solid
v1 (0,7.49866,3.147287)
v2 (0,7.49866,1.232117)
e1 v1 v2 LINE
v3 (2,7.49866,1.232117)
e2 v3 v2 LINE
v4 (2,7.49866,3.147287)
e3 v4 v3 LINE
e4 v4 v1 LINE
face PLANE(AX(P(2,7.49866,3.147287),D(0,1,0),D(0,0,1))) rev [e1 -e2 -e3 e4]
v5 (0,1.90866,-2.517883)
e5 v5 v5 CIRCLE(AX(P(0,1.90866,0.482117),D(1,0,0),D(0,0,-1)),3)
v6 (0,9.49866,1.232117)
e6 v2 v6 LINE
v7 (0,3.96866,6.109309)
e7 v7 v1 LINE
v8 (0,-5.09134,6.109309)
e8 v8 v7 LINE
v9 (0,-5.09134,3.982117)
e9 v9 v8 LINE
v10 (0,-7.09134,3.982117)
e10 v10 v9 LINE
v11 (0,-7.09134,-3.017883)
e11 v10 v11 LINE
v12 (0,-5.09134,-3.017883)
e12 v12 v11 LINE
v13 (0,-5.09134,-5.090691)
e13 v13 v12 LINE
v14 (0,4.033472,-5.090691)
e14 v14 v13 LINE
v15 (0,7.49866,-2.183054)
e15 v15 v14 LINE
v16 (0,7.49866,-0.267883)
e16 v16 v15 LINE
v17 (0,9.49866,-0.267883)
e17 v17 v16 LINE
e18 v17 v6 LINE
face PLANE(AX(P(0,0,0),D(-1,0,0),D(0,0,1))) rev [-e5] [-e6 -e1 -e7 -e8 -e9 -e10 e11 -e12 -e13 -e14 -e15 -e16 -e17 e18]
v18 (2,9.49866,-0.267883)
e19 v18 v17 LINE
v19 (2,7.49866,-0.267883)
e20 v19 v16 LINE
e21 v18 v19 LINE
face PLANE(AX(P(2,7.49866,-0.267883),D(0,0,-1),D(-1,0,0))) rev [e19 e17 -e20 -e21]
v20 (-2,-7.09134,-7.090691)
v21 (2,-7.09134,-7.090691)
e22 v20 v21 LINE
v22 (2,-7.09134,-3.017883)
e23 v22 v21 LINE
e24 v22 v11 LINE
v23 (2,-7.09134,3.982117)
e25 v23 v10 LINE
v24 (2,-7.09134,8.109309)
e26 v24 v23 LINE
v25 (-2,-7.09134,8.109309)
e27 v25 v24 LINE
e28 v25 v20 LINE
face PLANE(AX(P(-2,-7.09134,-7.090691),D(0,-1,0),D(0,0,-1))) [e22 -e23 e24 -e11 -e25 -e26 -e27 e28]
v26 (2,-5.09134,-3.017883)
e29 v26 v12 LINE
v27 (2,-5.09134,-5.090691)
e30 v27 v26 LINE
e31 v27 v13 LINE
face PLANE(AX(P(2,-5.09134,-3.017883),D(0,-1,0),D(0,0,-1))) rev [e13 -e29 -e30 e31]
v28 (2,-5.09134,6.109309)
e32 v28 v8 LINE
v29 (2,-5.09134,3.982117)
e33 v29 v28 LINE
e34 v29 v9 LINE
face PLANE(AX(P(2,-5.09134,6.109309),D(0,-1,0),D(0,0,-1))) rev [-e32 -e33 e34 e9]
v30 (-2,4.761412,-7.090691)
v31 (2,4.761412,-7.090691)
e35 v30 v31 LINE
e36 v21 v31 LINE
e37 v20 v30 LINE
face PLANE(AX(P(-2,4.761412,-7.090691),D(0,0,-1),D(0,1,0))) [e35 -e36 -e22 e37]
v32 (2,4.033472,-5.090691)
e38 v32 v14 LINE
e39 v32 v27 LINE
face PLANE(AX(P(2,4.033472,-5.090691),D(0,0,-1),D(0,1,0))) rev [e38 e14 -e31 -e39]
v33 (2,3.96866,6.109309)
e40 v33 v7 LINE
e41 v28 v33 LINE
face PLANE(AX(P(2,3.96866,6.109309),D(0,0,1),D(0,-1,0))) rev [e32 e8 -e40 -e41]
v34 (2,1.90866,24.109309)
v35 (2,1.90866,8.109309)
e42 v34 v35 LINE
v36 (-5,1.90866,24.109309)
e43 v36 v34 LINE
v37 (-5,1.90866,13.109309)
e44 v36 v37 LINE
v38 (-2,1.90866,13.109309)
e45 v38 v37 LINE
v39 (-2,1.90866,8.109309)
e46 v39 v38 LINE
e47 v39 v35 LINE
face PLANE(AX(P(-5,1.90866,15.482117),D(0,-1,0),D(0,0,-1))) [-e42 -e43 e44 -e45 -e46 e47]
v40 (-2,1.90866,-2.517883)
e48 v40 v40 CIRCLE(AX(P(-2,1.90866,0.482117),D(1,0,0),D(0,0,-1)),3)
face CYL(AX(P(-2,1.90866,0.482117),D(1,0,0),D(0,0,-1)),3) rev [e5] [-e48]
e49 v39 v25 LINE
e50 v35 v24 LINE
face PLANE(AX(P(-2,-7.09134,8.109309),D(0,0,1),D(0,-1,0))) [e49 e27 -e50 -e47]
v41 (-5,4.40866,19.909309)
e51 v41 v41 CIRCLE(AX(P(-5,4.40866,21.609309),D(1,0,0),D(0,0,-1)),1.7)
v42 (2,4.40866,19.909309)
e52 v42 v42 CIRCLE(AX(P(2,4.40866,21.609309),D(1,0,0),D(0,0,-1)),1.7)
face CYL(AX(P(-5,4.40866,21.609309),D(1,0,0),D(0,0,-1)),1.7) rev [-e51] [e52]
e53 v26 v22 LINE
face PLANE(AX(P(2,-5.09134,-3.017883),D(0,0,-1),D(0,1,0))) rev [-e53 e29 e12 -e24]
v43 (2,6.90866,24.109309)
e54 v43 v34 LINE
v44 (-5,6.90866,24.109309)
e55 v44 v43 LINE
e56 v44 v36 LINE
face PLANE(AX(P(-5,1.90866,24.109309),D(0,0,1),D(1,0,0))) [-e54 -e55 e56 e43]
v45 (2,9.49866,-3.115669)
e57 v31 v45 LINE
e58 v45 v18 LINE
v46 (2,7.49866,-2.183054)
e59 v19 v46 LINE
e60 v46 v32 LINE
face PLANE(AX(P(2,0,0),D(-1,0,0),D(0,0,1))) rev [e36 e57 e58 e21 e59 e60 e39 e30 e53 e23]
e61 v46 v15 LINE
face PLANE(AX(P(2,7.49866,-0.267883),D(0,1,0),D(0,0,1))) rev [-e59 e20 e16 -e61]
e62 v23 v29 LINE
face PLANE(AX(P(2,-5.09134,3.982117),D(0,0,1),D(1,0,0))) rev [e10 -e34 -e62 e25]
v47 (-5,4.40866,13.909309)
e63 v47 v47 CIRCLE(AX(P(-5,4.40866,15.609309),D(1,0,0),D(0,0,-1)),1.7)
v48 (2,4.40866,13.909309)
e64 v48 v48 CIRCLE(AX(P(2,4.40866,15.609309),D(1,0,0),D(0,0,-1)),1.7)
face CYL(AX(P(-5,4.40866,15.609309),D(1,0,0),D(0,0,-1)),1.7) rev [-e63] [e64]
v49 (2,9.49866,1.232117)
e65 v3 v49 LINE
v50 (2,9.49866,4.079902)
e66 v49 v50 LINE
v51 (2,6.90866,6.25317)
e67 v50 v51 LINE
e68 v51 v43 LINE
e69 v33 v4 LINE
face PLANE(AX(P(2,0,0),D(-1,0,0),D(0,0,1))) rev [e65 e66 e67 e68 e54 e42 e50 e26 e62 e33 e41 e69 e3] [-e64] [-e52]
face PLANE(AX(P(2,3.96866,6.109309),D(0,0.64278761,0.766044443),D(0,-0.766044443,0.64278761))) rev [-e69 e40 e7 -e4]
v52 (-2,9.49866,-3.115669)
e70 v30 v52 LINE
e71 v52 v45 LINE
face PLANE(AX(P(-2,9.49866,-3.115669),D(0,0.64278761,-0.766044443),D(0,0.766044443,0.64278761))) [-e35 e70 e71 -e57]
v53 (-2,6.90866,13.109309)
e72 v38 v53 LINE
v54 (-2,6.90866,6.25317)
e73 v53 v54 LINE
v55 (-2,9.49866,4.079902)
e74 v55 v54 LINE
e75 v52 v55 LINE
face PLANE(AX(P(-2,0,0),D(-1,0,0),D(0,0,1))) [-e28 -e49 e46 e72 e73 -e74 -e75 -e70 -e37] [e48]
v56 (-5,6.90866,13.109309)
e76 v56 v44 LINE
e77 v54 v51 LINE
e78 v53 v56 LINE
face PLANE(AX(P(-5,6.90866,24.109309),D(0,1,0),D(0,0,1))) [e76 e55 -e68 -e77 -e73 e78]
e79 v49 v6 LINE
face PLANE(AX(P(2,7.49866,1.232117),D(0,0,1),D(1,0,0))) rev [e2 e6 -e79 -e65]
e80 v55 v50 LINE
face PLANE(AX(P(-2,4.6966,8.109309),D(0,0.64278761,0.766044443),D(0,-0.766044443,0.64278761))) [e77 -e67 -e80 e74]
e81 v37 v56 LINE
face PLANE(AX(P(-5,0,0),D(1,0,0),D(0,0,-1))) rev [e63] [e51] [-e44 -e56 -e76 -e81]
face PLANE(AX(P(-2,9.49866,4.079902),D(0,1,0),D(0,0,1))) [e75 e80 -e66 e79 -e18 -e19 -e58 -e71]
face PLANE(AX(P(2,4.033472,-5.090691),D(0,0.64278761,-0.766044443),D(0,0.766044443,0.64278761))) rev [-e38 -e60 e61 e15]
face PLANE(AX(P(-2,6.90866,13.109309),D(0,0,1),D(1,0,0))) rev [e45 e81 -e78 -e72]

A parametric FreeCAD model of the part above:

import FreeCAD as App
import Part
import Sketcher

V = App.Vector
Q = App.Units.Quantity

doc = App.newDocument("Part")
body = doc.addObject("PartDesign::Body", "Body")

sketch1 = body.newObject("Sketcher::SketchObject", "Sketch")
sketch1.AttachmentSupport = (doc.getObject("YZ_Plane"), [""])
sketch1.MapMode = "FlatFace"
sketch1.addGeometry([
    Part.LineSegment(V(5, 8, 0), V(-7, 8, 0)),
    Part.LineSegment(V(-7, 8, 0), V(-7, -7, 0)),
    Part.LineSegment(V(-7, -7, 0), V(5, -7, 0)),
    Part.LineSegment(V(5, -7, 0), V(9, -3, 0)),
    Part.LineSegment(V(9, -3, 0), V(9, 4, 0)),
    Part.LineSegment(V(9, 4, 0), V(5, 8, 0)),
], False)
sketch1.addConstraint([
    Sketcher.Constraint("Coincident", 0, 2, 1, 1),
    Sketcher.Constraint("Coincident", 1, 2, 2, 1),
    Sketcher.Constraint("Coincident", 2, 2, 3, 1),
    Sketcher.Constraint("Coincident", 3, 2, 4, 1),
    Sketcher.Constraint("Coincident", 4, 2, 5, 1),
    Sketcher.Constraint("Coincident", 5, 2, 0, 1),
    Sketcher.Constraint("Horizontal", 0),
    Sketcher.Constraint("Vertical", 1),
    Sketcher.Constraint("Horizontal", 2),
    Sketcher.Constraint("Vertical", 4),
    Sketcher.Constraint("Angle", 3, Q("40 deg")),
    Sketcher.Constraint("Angle", 5, Q("140 deg")),
    Sketcher.Constraint("DistanceY", 1, 2, 1, 1, 15.2),
    Sketcher.Constraint("DistanceX", 1, 2, 3, 2, 16.59),
    Sketcher.Constraint("DistanceX", 0, 2, 0, 1, 11.78794),
    Sketcher.Constraint("DistanceY", 4, 1, 4, 2, 7.195571),
    Sketcher.Constraint("DistanceX", -1, 1, 5, 2, 4.6966),
    Sketcher.Constraint("DistanceY", -1, 1, 0, 2, 8.109309),
])
pad1 = body.newObject("PartDesign::Pad", "Pad")
pad1.Profile = sketch1
pad1.Length = 2
pad1.Reversed = True

sketch2 = body.newObject("Sketcher::SketchObject", "Sketch001")
sketch2.AttachmentSupport = (doc.getObject("YZ_Plane"), [""])
sketch2.MapMode = "FlatFace"
sketch2.addGeometry([
    Part.LineSegment(V(4, 6.1, 0), V(7.5, 3.1, 0)),
    Part.LineSegment(V(7.5, 3.1, 0), V(7.5, 1.2, 0)),
    Part.LineSegment(V(7.5, 1.2, 0), V(9.5, 1.2, 0)),
    Part.LineSegment(V(9.5, 1.2, 0), V(9.5, 4.1, 0)),
    Part.LineSegment(V(9.5, 4.1, 0), V(4.7, 8.1, 0)),
    Part.LineSegment(V(4.7, 8.1, 0), V(-7.1, 8.1, 0)),
    Part.LineSegment(V(-7.1, 8.1, 0), V(-7.1, 4, 0)),
    Part.LineSegment(V(-7.1, 4, 0), V(-5.1, 4, 0)),
    Part.LineSegment(V(-5.1, 4, 0), V(-5.1, 6.1, 0)),
    Part.LineSegment(V(-5.1, 6.1, 0), V(4, 6.1, 0)),
    Part.LineSegment(V(4, -5.1, 0), V(-5.1, -5.1, 0)),
    Part.LineSegment(V(-5.1, -5.1, 0), V(-5.1, -3, 0)),
    Part.LineSegment(V(-5.1, -3, 0), V(-7.1, -3, 0)),
    Part.LineSegment(V(-7.1, -3, 0), V(-7.1, -7.1, 0)),
    Part.LineSegment(V(-7.1, -7.1, 0), V(4.8, -7.1, 0)),
    Part.LineSegment(V(4.8, -7.1, 0), V(9.5, -3.1, 0)),
    Part.LineSegment(V(9.5, -3.1, 0), V(9.5, -0.3, 0)),
    Part.LineSegment(V(9.5, -0.3, 0), V(7.5, -0.3, 0)),
    Part.LineSegment(V(7.5, -0.3, 0), V(7.5, -2.2, 0)),
    Part.LineSegment(V(7.5, -2.2, 0), V(4, -5.1, 0)),
], False)
sketch2.addConstraint([
    Sketcher.Constraint("Coincident", 0, 2, 1, 1),
    Sketcher.Constraint("Coincident", 1, 2, 2, 1),
    Sketcher.Constraint("Coincident", 2, 2, 3, 1),
    Sketcher.Constraint("Coincident", 3, 2, 4, 1),
    Sketcher.Constraint("Coincident", 4, 2, 5, 1),
    Sketcher.Constraint("Coincident", 5, 2, 6, 1),
    Sketcher.Constraint("Coincident", 6, 2, 7, 1),
    Sketcher.Constraint("Coincident", 7, 2, 8, 1),
    Sketcher.Constraint("Coincident", 8, 2, 9, 1),
    Sketcher.Constraint("Coincident", 9, 2, 0, 1),
    Sketcher.Constraint("Coincident", 10, 2, 11, 1),
    Sketcher.Constraint("Coincident", 11, 2, 12, 1),
    Sketcher.Constraint("Coincident", 12, 2, 13, 1),
    Sketcher.Constraint("Coincident", 13, 2, 14, 1),
    Sketcher.Constraint("Coincident", 14, 2, 15, 1),
    Sketcher.Constraint("Coincident", 15, 2, 16, 1),
    Sketcher.Constraint("Coincident", 16, 2, 17, 1),
    Sketcher.Constraint("Coincident", 17, 2, 18, 1),
    Sketcher.Constraint("Coincident", 18, 2, 19, 1),
    Sketcher.Constraint("Coincident", 19, 2, 10, 1),
    Sketcher.Constraint("Vertical", 1),
    Sketcher.Constraint("Horizontal", 2),
    Sketcher.Constraint("Vertical", 3),
    Sketcher.Constraint("Horizontal", 5),
    Sketcher.Constraint("Vertical", 6),
    Sketcher.Constraint("Horizontal", 7),
    Sketcher.Constraint("Vertical", 8),
    Sketcher.Constraint("Horizontal", 9),
    Sketcher.Constraint("Horizontal", 10),
    Sketcher.Constraint("Vertical", 11),
    Sketcher.Constraint("Horizontal", 12),
    Sketcher.Constraint("Vertical", 13),
    Sketcher.Constraint("Horizontal", 14),
    Sketcher.Constraint("Vertical", 16),
    Sketcher.Constraint("Horizontal", 17),
    Sketcher.Constraint("Vertical", 18),
    Sketcher.Constraint("Parallel", 0, 4),
    Sketcher.Constraint("Parallel", 15, 19),
    Sketcher.Constraint("Vertical", 8, 2, 10, 2),
    Sketcher.Constraint("Vertical", 6, 2, 12, 2),
    Sketcher.Constraint("Vertical", 3, 2, 15, 2),
    Sketcher.Constraint("Vertical", 1, 2, 17, 2),
    Sketcher.Constraint("Equal", 2, 7),
    Sketcher.Constraint("Equal", 3, 16),
    Sketcher.Constraint("Equal", 1, 18),
    Sketcher.Constraint("DistanceX", 2, 1, 2, 2, 2.0),
    Sketcher.Constraint("Angle", 0, Q("-40 deg")),
    Sketcher.Constraint("Angle", 15, Q("40 deg")),
    Sketcher.Constraint("DistanceY", 8, 2, 5, 2, 2.0),
    Sketcher.Constraint("DistanceY", 11, 2, 7, 2, 7.0),
    Sketcher.Constraint("DistanceY", 13, 2, 10, 2, 2.0),
    Sketcher.Constraint("DistanceX", 9, 1, 9, 2, 9.06),
    Sketcher.Constraint("DistanceY", 10, 2, 8, 2, 11.2),
    Sketcher.Constraint("DistanceY", 16, 2, 2, 2, 1.5),
    Sketcher.Constraint("DistanceX", 5, 2, 0, 2, 14.59),
    Sketcher.Constraint("DistanceY", 1, 2, 6, 2, 2.75),
    Sketcher.Constraint("DistanceX", 5, 2, 5, 1, 11.78794),
    Sketcher.Constraint("DistanceY", 1, 2, 1, 1, 1.91517),
    Sketcher.Constraint("DistanceX", -1, 1, 4, 2, 4.6966),
    Sketcher.Constraint("DistanceY", -1, 1, 4, 2, 8.109309),
])
pad2 = body.newObject("PartDesign::Pad", "Pad001")
pad2.Profile = sketch2
pad2.Length = 2

sketch3 = body.newObject("Sketcher::SketchObject", "Sketch002")
sketch3.AttachmentSupport = (doc.getObject("YZ_Plane"), [""])
sketch3.MapMode = "FlatFace"
sketch3.addGeometry(Part.Circle(V(1.9, 0.5, 0), V(0, 0, 1), 3), False)
sketch3.addConstraint([
    Sketcher.Constraint("Diameter", 0, 6.0),
    Sketcher.Constraint("DistanceX", -1, 1, 0, 3, 1.90866),
    Sketcher.Constraint("DistanceY", -1, 1, 0, 3, 0.482117),
])
pocket1 = body.newObject("PartDesign::Pocket", "Pocket")
pocket1.Profile = sketch3
pocket1.Length = 2

sketch4 = body.newObject("Sketcher::SketchObject", "Sketch003")
sketch4.AttachmentSupport = (doc.getObject("YZ_Plane"), [""])
sketch4.MapMode = "FlatFace"
sketch4.AttachmentOffset = App.Placement(V(0, 0, 2), App.Rotation())
sketch4.addGeometry([
    Part.LineSegment(V(1.9, 8.1, 0), V(4.7, 8.1, 0)),
    Part.LineSegment(V(4.7, 8.1, 0), V(6.9, 6.3, 0)),
    Part.LineSegment(V(6.9, 6.3, 0), V(6.9, 24.1, 0)),
    Part.LineSegment(V(6.9, 24.1, 0), V(1.9, 24.1, 0)),
    Part.LineSegment(V(1.9, 24.1, 0), V(1.9, 8.1, 0)),
    Part.Circle(V(4.4, 21.6, 0), V(0, 0, 1), 1.7),
    Part.Circle(V(4.4, 15.6, 0), V(0, 0, 1), 1.7),
], False)
sketch4.addConstraint([
    Sketcher.Constraint("Coincident", 0, 2, 1, 1),
    Sketcher.Constraint("Coincident", 1, 2, 2, 1),
    Sketcher.Constraint("Coincident", 2, 2, 3, 1),
    Sketcher.Constraint("Coincident", 3, 2, 4, 1),
    Sketcher.Constraint("Coincident", 4, 2, 0, 1),
    Sketcher.Constraint("Horizontal", 0),
    Sketcher.Constraint("Vertical", 2),
    Sketcher.Constraint("Horizontal", 3),
    Sketcher.Constraint("Vertical", 4),
    Sketcher.Constraint("Equal", 5, 6),
    Sketcher.Constraint("Vertical", 5, 3, 6, 3),
    Sketcher.Constraint("Diameter", 5, 3.4),
    Sketcher.Constraint("DistanceX", 3, 2, 3, 1, 5.0),
    Sketcher.Constraint("DistanceY", 4, 2, 4, 1, 16.0),
    Sketcher.Constraint("Angle", 1, Q("-40 deg")),
    Sketcher.Constraint("DistanceY", 6, 3, 5, 3, 6.0),
    Sketcher.Constraint("DistanceY", 0, 2, 6, 3, 7.5),
    Sketcher.Constraint("DistanceX", 6, 3, 1, 2, 2.5),
    Sketcher.Constraint("DistanceX", 0, 1, 0, 2, 2.78794),
    Sketcher.Constraint("DistanceX", -1, 1, 0, 2, 4.6966),
    Sketcher.Constraint("DistanceY", -1, 1, 5, 3, 21.609309),
])
pad3 = body.newObject("PartDesign::Pad", "Pad002")
pad3.Profile = sketch4
pad3.Length = 7
pad3.Reversed = True

sketch5 = body.newObject("Sketcher::SketchObject", "Sketch004")
sketch5.AttachmentSupport = (doc.getObject("YZ_Plane"), [""])
sketch5.MapMode = "FlatFace"
sketch5.AttachmentOffset = App.Placement(V(0, 0, -5), App.Rotation())
sketch5.addGeometry([
    Part.LineSegment(V(6.9, 6.3, 0), V(4.7, 8.1, 0)),
    Part.LineSegment(V(4.7, 8.1, 0), V(1.9, 8.1, 0)),
    Part.LineSegment(V(1.9, 8.1, 0), V(1.9, 13.1, 0)),
    Part.LineSegment(V(1.9, 13.1, 0), V(6.9, 13.1, 0)),
    Part.LineSegment(V(6.9, 13.1, 0), V(6.9, 6.3, 0)),
], False)
sketch5.addConstraint([
    Sketcher.Constraint("Coincident", 0, 2, 1, 1),
    Sketcher.Constraint("Coincident", 1, 2, 2, 1),
    Sketcher.Constraint("Coincident", 2, 2, 3, 1),
    Sketcher.Constraint("Coincident", 3, 2, 4, 1),
    Sketcher.Constraint("Coincident", 4, 2, 0, 1),
    Sketcher.Constraint("Horizontal", 1),
    Sketcher.Constraint("Vertical", 2),
    Sketcher.Constraint("Horizontal", 3),
    Sketcher.Constraint("Vertical", 4),
    Sketcher.Constraint("Equal", 3, 2),
    Sketcher.Constraint("DistanceX", 3, 1, 3, 2, 5.0),
    Sketcher.Constraint("Angle", 0, Q("140 deg")),
    Sketcher.Constraint("DistanceX", 1, 2, 1, 1, 2.78794),
    Sketcher.Constraint("DistanceX", -1, 1, 0, 2, 4.6966),
    Sketcher.Constraint("DistanceY", -1, 1, 0, 2, 8.109309),
])
pocket2 = body.newObject("PartDesign::Pocket", "Pocket001")
pocket2.Profile = sketch5
pocket2.Length = 3
pocket2.Reversed = True

doc.recompute()
